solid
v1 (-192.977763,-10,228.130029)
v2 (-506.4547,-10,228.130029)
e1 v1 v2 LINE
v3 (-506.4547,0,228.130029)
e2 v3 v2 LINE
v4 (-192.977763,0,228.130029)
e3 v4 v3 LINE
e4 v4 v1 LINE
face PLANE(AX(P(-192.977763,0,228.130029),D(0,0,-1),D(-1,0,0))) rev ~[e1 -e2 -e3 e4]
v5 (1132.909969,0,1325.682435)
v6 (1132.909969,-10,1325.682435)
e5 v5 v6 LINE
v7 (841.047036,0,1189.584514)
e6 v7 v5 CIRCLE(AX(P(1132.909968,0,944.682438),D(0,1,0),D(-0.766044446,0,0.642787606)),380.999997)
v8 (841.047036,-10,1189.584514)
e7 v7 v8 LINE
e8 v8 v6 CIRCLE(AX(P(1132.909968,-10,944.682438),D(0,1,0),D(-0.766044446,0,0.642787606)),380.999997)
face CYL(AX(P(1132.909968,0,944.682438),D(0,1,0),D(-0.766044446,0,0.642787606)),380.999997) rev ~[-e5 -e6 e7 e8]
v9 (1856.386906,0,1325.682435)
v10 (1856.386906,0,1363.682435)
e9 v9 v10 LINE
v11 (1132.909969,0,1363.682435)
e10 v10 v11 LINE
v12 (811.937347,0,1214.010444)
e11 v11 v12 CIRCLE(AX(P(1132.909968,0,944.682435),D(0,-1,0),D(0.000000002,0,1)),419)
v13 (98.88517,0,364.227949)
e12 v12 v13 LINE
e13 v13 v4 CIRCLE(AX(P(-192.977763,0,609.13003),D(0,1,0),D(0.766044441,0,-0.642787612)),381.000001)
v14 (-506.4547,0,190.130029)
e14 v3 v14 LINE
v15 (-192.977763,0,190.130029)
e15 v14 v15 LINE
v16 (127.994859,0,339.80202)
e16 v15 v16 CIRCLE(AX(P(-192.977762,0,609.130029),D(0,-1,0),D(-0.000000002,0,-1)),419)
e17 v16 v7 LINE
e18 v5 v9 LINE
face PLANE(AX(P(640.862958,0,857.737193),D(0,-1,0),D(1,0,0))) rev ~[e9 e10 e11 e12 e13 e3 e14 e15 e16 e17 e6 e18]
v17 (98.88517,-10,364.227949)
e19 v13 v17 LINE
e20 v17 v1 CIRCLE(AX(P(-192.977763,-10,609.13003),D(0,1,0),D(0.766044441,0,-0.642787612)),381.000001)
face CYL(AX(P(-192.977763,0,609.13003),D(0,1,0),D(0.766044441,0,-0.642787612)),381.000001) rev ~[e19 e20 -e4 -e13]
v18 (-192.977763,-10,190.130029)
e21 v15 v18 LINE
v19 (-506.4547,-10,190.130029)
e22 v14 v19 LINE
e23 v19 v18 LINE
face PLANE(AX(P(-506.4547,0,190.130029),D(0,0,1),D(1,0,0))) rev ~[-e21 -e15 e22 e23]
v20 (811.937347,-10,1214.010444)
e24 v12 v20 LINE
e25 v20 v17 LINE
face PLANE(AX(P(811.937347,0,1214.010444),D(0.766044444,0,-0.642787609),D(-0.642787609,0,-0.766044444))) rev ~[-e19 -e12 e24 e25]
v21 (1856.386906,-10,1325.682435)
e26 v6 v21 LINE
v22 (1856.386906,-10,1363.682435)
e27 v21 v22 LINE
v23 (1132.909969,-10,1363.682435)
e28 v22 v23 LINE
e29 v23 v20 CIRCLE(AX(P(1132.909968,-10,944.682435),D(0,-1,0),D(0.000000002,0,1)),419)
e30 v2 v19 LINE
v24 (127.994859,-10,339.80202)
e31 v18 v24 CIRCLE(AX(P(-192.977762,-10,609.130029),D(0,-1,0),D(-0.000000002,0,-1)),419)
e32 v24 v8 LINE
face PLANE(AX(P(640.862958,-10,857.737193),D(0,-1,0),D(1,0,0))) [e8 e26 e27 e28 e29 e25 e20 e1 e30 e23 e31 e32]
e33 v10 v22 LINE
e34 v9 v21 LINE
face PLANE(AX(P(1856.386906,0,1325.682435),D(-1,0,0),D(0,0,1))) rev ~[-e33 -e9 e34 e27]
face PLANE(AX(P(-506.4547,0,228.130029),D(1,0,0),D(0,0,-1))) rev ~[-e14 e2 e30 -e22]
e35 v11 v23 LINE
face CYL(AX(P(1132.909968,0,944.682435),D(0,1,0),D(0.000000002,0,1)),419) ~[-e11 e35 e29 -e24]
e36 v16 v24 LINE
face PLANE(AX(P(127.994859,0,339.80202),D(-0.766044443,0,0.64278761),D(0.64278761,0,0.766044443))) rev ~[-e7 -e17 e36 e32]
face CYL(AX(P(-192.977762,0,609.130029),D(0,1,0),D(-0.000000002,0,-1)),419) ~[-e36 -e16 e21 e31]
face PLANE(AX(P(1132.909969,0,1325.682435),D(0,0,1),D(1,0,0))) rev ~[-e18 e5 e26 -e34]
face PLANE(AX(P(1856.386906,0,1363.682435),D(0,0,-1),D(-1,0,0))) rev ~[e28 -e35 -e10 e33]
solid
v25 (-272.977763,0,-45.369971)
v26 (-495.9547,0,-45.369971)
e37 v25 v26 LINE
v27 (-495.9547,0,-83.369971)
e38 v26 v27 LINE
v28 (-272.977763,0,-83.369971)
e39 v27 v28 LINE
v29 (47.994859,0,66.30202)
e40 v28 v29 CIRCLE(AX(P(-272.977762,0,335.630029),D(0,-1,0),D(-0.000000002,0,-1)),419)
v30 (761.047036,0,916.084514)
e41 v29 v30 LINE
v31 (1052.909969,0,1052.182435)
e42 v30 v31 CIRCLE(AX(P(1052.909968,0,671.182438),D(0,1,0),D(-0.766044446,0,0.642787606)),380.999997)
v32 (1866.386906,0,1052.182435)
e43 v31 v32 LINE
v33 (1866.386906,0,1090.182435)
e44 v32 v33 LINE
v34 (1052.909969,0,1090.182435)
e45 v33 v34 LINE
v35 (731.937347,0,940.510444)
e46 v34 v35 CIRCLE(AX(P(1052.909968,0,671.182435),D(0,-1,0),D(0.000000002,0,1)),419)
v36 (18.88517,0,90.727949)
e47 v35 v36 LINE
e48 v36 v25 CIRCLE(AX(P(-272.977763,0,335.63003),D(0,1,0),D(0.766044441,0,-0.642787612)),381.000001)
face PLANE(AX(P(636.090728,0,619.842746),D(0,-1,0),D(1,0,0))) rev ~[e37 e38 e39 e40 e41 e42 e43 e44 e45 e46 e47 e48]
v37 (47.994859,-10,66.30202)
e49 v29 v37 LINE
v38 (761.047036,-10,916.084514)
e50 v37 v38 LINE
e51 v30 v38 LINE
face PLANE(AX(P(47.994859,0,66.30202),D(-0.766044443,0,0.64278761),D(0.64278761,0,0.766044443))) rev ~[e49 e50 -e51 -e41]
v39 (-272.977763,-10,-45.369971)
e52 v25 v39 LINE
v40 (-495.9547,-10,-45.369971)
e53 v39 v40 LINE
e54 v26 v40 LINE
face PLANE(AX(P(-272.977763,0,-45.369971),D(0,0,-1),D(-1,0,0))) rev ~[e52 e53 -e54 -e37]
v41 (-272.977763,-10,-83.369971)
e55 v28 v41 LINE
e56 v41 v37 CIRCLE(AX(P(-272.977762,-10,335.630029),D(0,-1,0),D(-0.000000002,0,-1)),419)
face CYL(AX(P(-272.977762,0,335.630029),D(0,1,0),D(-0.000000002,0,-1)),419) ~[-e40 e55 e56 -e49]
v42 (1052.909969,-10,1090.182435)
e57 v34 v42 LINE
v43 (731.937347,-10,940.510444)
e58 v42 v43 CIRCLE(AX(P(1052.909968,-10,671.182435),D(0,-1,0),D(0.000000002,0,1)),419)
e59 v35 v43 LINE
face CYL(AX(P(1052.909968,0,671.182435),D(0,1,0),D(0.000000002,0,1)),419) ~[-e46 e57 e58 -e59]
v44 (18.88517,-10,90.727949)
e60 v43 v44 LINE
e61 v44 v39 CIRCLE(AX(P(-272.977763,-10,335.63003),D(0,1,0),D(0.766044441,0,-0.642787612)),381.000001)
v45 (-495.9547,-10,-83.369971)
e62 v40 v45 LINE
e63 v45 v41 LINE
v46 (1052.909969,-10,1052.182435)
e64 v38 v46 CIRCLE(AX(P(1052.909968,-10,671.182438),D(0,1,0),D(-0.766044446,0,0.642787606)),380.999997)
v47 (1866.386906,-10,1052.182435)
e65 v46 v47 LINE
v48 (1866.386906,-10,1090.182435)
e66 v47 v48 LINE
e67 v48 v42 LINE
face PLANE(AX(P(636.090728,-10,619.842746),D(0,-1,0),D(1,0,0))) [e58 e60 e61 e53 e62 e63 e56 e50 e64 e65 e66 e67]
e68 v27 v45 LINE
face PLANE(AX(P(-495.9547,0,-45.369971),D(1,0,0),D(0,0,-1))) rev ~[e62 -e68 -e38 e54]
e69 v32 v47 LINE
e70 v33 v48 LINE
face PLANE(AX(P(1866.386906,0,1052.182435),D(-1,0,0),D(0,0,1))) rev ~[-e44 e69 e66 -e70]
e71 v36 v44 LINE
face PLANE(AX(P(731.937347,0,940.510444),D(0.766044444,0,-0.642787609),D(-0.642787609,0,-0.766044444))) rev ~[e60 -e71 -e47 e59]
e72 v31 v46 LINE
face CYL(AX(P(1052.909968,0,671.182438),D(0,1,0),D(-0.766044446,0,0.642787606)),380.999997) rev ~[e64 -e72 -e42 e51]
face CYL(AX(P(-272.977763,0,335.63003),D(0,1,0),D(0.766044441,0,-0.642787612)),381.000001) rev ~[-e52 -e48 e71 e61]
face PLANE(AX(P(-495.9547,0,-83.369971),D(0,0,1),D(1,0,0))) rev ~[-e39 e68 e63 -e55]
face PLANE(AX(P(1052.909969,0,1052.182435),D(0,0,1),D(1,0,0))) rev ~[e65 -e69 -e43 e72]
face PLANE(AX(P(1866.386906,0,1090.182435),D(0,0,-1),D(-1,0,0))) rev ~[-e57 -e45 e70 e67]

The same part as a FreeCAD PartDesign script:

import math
import FreeCAD as App
import Part
import Sketcher
from FreeCAD import Vector
Q = App.Units.Quantity

doc = App.newDocument("Part")
params = doc.addObject("Spreadsheet::Sheet", "Params")
for row, (alias, value) in enumerate([
    ("sketch1_radius", "419 mm"),
    ("sketch1_radius2", "381.000001 mm"),
    ("pad1_length", "10 mm"),
], start=1):
    params.set(f"A{row}", alias)
    params.set(f"B{row}", "=" + value)
    params.setAlias(f"B{row}", alias)

body = doc.addObject("PartDesign::Body", "Body")
body.AllowCompound = True

# Sketch on XZ plane
sketch1 = body.newObject("Sketcher::SketchObject", "Sketch")
sketch1.AttachmentSupport = (doc.getObject("XZ_Plane"), [""])
sketch1.MapMode = "FlatFace"
sketch1.addGeometry(Part.LineSegment(Vector(1052.909969, 1052.182435, 0), Vector(1866.386906, 1052.182435, 0)), False)
sketch1.addGeometry(Part.LineSegment(Vector(1866.386906, 1052.182435, 0), Vector(1866.386906, 1090.182435, 0)), False)
sketch1.addGeometry(Part.LineSegment(Vector(1866.386906, 1090.182435, 0), Vector(1052.909969, 1090.182435, 0)), False)
sketch1.addGeometry(Part.ArcOfCircle(Part.Circle(Vector(1052.909968, 671.182435, 0), Vector(0, 0, 1), 419), math.radians(90), math.radians(140)), False)
sketch1.addGeometry(Part.LineSegment(Vector(731.937347, 940.510444, 0), Vector(18.88517, 90.727949, 0)), False)
sketch1.addGeometry(Part.ArcOfCircle(Part.Circle(Vector(-272.977763, 335.63003, 0), Vector(0, 0, 1), 381.000001), math.radians(-90), math.radians(-40)), False)
sketch1.addGeometry(Part.LineSegment(Vector(-272.977763, -45.369971, 0), Vector(-495.9547, -45.369971, 0)), False)
sketch1.addGeometry(Part.LineSegment(Vector(-495.9547, -45.369971, 0), Vector(-495.9547, -83.369971, 0)), False)
sketch1.addGeometry(Part.LineSegment(Vector(-495.9547, -83.369971, 0), Vector(-272.977763, -83.369971, 0)), False)
sketch1.addGeometry(Part.ArcOfCircle(Part.Circle(Vector(-272.977762, 335.630029, 0), Vector(0, 0, 1), 419), math.radians(-90), math.radians(-40)), False)
sketch1.addGeometry(Part.LineSegment(Vector(47.994859, 66.30202, 0), Vector(761.047036, 916.084514, 0)), False)
sketch1.addGeometry(Part.ArcOfCircle(Part.Circle(Vector(1052.909968, 671.182438, 0), Vector(0, 0, 1), 380.999997), math.radians(90), math.radians(140)), False)
sketch1.addGeometry(Part.LineSegment(Vector(1132.909969, 1325.682435, 0), Vector(1856.386906, 1325.682435, 0)), False)
sketch1.addGeometry(Part.LineSegment(Vector(1856.386906, 1325.682435, 0), Vector(1856.386906, 1363.682435, 0)), False)
sketch1.addGeometry(Part.LineSegment(Vector(1856.386906, 1363.682435, 0), Vector(1132.909969, 1363.682435, 0)), False)
sketch1.addGeometry(Part.ArcOfCircle(Part.Circle(Vector(1132.909968, 944.682435, 0), Vector(0, 0, 1), 419), math.radians(90), math.radians(140)), False)
sketch1.addGeometry(Part.LineSegment(Vector(811.937347, 1214.010444, 0), Vector(98.88517, 364.227949, 0)), False)
sketch1.addGeometry(Part.ArcOfCircle(Part.Circle(Vector(-192.977763, 609.13003, 0), Vector(0, 0, 1), 381.000001), math.radians(-90), math.radians(-40)), False)
sketch1.addGeometry(Part.LineSegment(Vector(-192.977763, 228.130029, 0), Vector(-506.4547, 228.130029, 0)), False)
sketch1.addGeometry(Part.LineSegment(Vector(-506.4547, 228.130029, 0), Vector(-506.4547, 190.130029, 0)), False)
sketch1.addGeometry(Part.LineSegment(Vector(-506.4547, 190.130029, 0), Vector(-192.977763, 190.130029, 0)), False)
sketch1.addGeometry(Part.ArcOfCircle(Part.Circle(Vector(-192.977762, 609.130029, 0), Vector(0, 0, 1), 419), math.radians(-90), math.radians(-40)), False)
sketch1.addGeometry(Part.LineSegment(Vector(127.994859, 339.80202, 0), Vector(841.047036, 1189.584514, 0)), False)
sketch1.addGeometry(Part.ArcOfCircle(Part.Circle(Vector(1132.909968, 944.682438, 0), Vector(0, 0, 1), 380.999997), math.radians(90), math.radians(140)), False)
sketch1.addConstraint(Sketcher.Constraint("Coincident", 0, 2, 1, 1))
sketch1.addConstraint(Sketcher.Constraint("Coincident", 1, 2, 2, 1))
sketch1.addConstraint(Sketcher.Constraint("Tangent", 2, 2, 3, 1))
sketch1.addConstraint(Sketcher.Constraint("Tangent", 3, 2, 4, 1))
sketch1.addConstraint(Sketcher.Constraint("Tangent", 4, 2, 5, 2))
sketch1.addConstraint(Sketcher.Constraint("Tangent", 5, 1, 6, 1))
sketch1.addConstraint(Sketcher.Constraint("Coincident", 6, 2, 7, 1))
sketch1.addConstraint(Sketcher.Constraint("Coincident", 7, 2, 8, 1))
sketch1.addConstraint(Sketcher.Constraint("Tangent", 8, 2, 9, 1))
sketch1.addConstraint(Sketcher.Constraint("Tangent", 9, 2, 10, 1))
sketch1.addConstraint(Sketcher.Constraint("Tangent", 10, 2, 11, 2))
sketch1.addConstraint(Sketcher.Constraint("Tangent", 11, 1, 0, 1))
sketch1.addConstraint(Sketcher.Constraint("Coincident", 12, 2, 13, 1))
sketch1.addConstraint(Sketcher.Constraint("Coincident", 13, 2, 14, 1))
sketch1.addConstraint(Sketcher.Constraint("Tangent", 14, 2, 15, 1))
sketch1.addConstraint(Sketcher.Constraint("Tangent", 15, 2, 16, 1))
sketch1.addConstraint(Sketcher.Constraint("Tangent", 16, 2, 17, 2))
sketch1.addConstraint(Sketcher.Constraint("Tangent", 17, 1, 18, 1))
sketch1.addConstraint(Sketcher.Constraint("Coincident", 18, 2, 19, 1))
sketch1.addConstraint(Sketcher.Constraint("Coincident", 19, 2, 20, 1))
sketch1.addConstraint(Sketcher.Constraint("Tangent", 20, 2, 21, 1))
sketch1.addConstraint(Sketcher.Constraint("Tangent", 21, 2, 22, 1))
sketch1.addConstraint(Sketcher.Constraint("Tangent", 22, 2, 23, 2))
sketch1.addConstraint(Sketcher.Constraint("Tangent", 23, 1, 12, 1))
sketch1.addConstraint(Sketcher.Constraint("Horizontal", 0))
sketch1.addConstraint(Sketcher.Constraint("Vertical", 1))
sketch1.addConstraint(Sketcher.Constraint("Horizontal", 2))
sketch1.addConstraint(Sketcher.Constraint("Horizontal", 6))
sketch1.addConstraint(Sketcher.Constraint("Vertical", 7))
sketch1.addConstraint(Sketcher.Constraint("Horizontal", 8))
sketch1.addConstraint(Sketcher.Constraint("Horizontal", 12))
sketch1.addConstraint(Sketcher.Constraint("Vertical", 13))
sketch1.addConstraint(Sketcher.Constraint("Horizontal", 14))
sketch1.addConstraint(Sketcher.Constraint("Horizontal", 18))
sketch1.addConstraint(Sketcher.Constraint("Vertical", 19))
sketch1.addConstraint(Sketcher.Constraint("Horizontal", 20))
sketch1.addConstraint(Sketcher.Constraint("Coincident", 9, 3, 5, 3))
sketch1.addConstraint(Sketcher.Constraint("Coincident", 11, 3, 3, 3))
sketch1.addConstraint(Sketcher.Constraint("Coincident", 21, 3, 17, 3))
sketch1.addConstraint(Sketcher.Constraint("Coincident", 23, 3, 15, 3))
sketch1.addConstraint(Sketcher.Constraint("Equal", 3, 9))
sketch1.addConstraint(Sketcher.Constraint("Equal", 9, 15))
sketch1.addConstraint(Sketcher.Constraint("Equal", 5, 17))
sketch1.addConstraint(Sketcher.Constraint("Equal", 15, 21))
sketch1.addConstraint(Sketcher.Constraint("Equal", 11, 23))
sketch1.addConstraint(Sketcher.Constraint("Parallel", 4, 10))
sketch1.addConstraint(Sketcher.Constraint("Parallel", 10, 16))
sketch1.addConstraint(Sketcher.Constraint("Equal", 10, 16))
sketch1.addConstraint(Sketcher.Constraint("Radius", 3, Q("419 mm")))
sketch1.addConstraint(Sketcher.Constraint("Radius", 5, Q("381.000001 mm")))
sketch1.addConstraint(Sketcher.Constraint("Angle", 4, Q("-130 deg")))
sketch1.addConstraint(Sketcher.Constraint("DistanceX", 11, 3, 15, 3, Q("80 mm")))
sketch1.addConstraint(Sketcher.Constraint("DistanceX", 12, 2, 1, 2, Q("10 mm")))
sketch1.addConstraint(Sketcher.Constraint("DistanceY", 3, 3, 15, 3, Q("273.5 mm")))
sketch1.addConstraint(Sketcher.Constraint("DistanceX", 18, 2, 6, 2, Q("10.5 mm")))
sketch1.addConstraint(Sketcher.Constraint("DistanceX", 6, 2, -1, 1, Q("495.9547 mm")))
sketch1.addConstraint(Sketcher.Constraint("Distance", 10, Q("1109.312262 mm")))
sketch1.addConstraint(Sketcher.Constraint("DistanceX", 0, 1, 0, 2, Q("813.476937 mm")))
sketch1.addConstraint(Sketcher.Constraint("DistanceX", 6, 2, 6, 1, Q("222.976937 mm")))
sketch1.addConstraint(Sketcher.Constraint("DistanceY", -1, 1, 5, 3, Q("335.63003 mm")))
sketch1.setExpression("Constraints[48]", "Params.sketch1_radius")
sketch1.setExpression("Constraints[49]", "Params.sketch1_radius2")
pad1 = body.newObject("PartDesign::Pad", "Pad")
pad1.Profile = sketch1
pad1.setExpression("Length", "Params.pad1_length")

doc.recompute()
